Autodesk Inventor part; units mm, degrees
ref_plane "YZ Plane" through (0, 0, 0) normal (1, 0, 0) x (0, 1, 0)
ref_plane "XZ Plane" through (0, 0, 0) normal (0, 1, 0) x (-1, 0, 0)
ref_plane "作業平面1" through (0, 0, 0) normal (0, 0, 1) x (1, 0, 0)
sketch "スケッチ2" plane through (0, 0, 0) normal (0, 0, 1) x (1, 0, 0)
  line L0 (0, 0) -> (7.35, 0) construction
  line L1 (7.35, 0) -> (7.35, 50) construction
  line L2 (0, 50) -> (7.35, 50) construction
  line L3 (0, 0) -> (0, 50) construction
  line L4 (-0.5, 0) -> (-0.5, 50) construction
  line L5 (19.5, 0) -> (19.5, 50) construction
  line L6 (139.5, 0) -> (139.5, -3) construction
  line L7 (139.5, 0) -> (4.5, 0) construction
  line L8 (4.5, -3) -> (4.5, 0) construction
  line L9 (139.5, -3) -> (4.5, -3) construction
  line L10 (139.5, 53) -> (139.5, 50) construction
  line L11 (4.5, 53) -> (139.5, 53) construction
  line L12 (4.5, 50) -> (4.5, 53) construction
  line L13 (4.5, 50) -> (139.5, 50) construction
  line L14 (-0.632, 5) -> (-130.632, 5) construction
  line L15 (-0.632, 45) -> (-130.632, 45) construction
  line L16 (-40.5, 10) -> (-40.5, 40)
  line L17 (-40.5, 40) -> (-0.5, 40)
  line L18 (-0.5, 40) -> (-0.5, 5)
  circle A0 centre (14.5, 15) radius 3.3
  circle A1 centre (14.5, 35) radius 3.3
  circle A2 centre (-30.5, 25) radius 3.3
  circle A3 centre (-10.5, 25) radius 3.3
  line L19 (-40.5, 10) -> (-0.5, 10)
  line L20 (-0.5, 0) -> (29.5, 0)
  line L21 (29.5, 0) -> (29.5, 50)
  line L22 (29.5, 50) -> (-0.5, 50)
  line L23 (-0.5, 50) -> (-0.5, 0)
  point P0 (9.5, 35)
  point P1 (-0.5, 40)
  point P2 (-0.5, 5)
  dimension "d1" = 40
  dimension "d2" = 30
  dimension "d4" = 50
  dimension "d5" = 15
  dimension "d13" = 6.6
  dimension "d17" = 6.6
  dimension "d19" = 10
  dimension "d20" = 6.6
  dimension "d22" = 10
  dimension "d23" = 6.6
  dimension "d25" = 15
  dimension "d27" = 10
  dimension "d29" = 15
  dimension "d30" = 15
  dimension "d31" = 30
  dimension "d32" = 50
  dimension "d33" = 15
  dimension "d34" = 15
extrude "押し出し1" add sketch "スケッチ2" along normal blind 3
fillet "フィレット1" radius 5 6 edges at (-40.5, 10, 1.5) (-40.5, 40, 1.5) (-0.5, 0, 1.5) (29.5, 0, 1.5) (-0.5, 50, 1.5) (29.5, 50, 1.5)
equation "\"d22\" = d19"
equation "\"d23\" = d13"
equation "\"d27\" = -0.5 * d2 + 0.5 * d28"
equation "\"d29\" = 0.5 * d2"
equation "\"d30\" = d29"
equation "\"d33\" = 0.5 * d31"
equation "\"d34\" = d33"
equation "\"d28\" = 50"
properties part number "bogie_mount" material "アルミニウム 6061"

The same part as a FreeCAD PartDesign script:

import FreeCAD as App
import Part
import Sketcher
Q = App.Units.Quantity


def edges_at(feature, points):
    """Names of the edges that pass closest to the given points."""
    edges = feature.Shape.Edges
    near = lambda p: min(range(len(edges)), key=lambda i: edges[i].distToShape(Part.Vertex(*p))[0])
    return sorted({f"Edge{near(p) + 1}" for p in points})

doc = App.newDocument("Part")
body = doc.addObject("PartDesign::Body", "Body")

# Sketch on XY plane
sketch1 = body.newObject("Sketcher::SketchObject", "Sketch")
sketch1.AttachmentSupport = (doc.getObject("XY_Plane"), [""])
sketch1.MapMode = "FlatFace"
sketch1.addGeometry([
    Part.LineSegment(App.Vector(-40.5, 40, 0), App.Vector(-40.5, 10, 0)),  # 0
    Part.LineSegment(App.Vector(-40.5, 10, 0), App.Vector(-0.5, 10, 0)),  # 1
    Part.LineSegment(App.Vector(-0.5, 10, 0), App.Vector(-0.5, 0, 0)),  # 2
    Part.LineSegment(App.Vector(-0.5, 0, 0), App.Vector(29.5, 0, 0)),  # 3
    Part.LineSegment(App.Vector(29.5, 0, 0), App.Vector(29.5, 50, 0)),  # 4
    Part.LineSegment(App.Vector(29.5, 50, 0), App.Vector(-0.5, 50, 0)),  # 5
    Part.LineSegment(App.Vector(-0.5, 50, 0), App.Vector(-0.5, 40, 0)),  # 6
    Part.LineSegment(App.Vector(-0.5, 40, 0), App.Vector(-40.5, 40, 0)),  # 7
    Part.Circle(App.Vector(-30.5, 25, 0), App.Vector(0, 0, 1), 3.3),  # 8
    Part.Circle(App.Vector(-10.5, 25, 0), App.Vector(0, 0, 1), 3.3),  # 9
    Part.Circle(App.Vector(14.5, 35, 0), App.Vector(0, 0, 1), 3.3),  # 10
    Part.Circle(App.Vector(14.5, 15, 0), App.Vector(0, 0, 1), 3.3),  # 11
], False)
sketch1.addConstraint([
    Sketcher.Constraint("Coincident", 0, 2, 1, 1),
    Sketcher.Constraint("Coincident", 1, 2, 2, 1),
    Sketcher.Constraint("Coincident", 2, 2, 3, 1),
    Sketcher.Constraint("Coincident", 3, 2, 4, 1),
    Sketcher.Constraint("Coincident", 4, 2, 5, 1),
    Sketcher.Constraint("Coincident", 5, 2, 6, 1),
    Sketcher.Constraint("Coincident", 6, 2, 7, 1),
    Sketcher.Constraint("Coincident", 7, 2, 0, 1),
    Sketcher.Constraint("Vertical", 0),
    Sketcher.Constraint("Horizontal", 1),
    Sketcher.Constraint("Vertical", 2),
    Sketcher.Constraint("Horizontal", 3),
    Sketcher.Constraint("Vertical", 4),
    Sketcher.Constraint("Horizontal", 5),
    Sketcher.Constraint("Vertical", 6),
    Sketcher.Constraint("Horizontal", 7),
    Sketcher.Constraint("Equal", 8, 9),
    Sketcher.Constraint("Equal", 9, 10),
    Sketcher.Constraint("Equal", 10, 11),
    Sketcher.Constraint("PointOnObject", 2, 2, -1),
    Sketcher.Constraint("Horizontal", 8, 3, 9, 3),
    Sketcher.Constraint("Vertical", 10, 3, 11, 3),
    Sketcher.Constraint("Vertical", 2, 2, 5, 2),
    Sketcher.Constraint("Equal", 5, 0),
    Sketcher.Constraint("Equal", 2, 6),
    Sketcher.Constraint("Diameter", 8, Q("6.6 mm")),
    Sketcher.Constraint("DistanceX", 1, 1, 1, 2, Q("40 mm")),
    Sketcher.Constraint("DistanceX", 3, 1, 3, 2, Q("30 mm")),
    Sketcher.Constraint("DistanceY", 2, 2, 2, 1, Q("10 mm")),
    Sketcher.Constraint("DistanceY", -1, 1, 11, 3, Q("15 mm")),
    Sketcher.Constraint("DistanceY", 9, 3, 10, 3, Q("10 mm")),
    Sketcher.Constraint("DistanceY", 11, 3, 9, 3, Q("10 mm")),
    Sketcher.Constraint("DistanceX", 0, 2, 8, 3, Q("10 mm")),
    Sketcher.Constraint("DistanceX", 0, 2, 9, 3, Q("30 mm")),
    Sketcher.Constraint("DistanceX", 1, 2, 11, 3, Q("15 mm")),
    Sketcher.Constraint("DistanceX", 8, 3, -1, 1, Q("30.5 mm")),
])
pad1 = body.newObject("PartDesign::Pad", "Pad")
pad1.Profile = sketch1
pad1.Length = 3
doc.recompute()

fillet = body.newObject("PartDesign::Fillet", "Fillet")
fillet.Base = (pad1, edges_at(pad1, [
    (-40.5, 10, 1.5),
    (-40.5, 40, 1.5),
    (-0.5, 0, 1.5),
    (29.5, 0, 1.5),
    (-0.5, 50, 1.5),
    (29.5, 50, 1.5),
]))
fillet.Radius = 5

doc.recompute()
